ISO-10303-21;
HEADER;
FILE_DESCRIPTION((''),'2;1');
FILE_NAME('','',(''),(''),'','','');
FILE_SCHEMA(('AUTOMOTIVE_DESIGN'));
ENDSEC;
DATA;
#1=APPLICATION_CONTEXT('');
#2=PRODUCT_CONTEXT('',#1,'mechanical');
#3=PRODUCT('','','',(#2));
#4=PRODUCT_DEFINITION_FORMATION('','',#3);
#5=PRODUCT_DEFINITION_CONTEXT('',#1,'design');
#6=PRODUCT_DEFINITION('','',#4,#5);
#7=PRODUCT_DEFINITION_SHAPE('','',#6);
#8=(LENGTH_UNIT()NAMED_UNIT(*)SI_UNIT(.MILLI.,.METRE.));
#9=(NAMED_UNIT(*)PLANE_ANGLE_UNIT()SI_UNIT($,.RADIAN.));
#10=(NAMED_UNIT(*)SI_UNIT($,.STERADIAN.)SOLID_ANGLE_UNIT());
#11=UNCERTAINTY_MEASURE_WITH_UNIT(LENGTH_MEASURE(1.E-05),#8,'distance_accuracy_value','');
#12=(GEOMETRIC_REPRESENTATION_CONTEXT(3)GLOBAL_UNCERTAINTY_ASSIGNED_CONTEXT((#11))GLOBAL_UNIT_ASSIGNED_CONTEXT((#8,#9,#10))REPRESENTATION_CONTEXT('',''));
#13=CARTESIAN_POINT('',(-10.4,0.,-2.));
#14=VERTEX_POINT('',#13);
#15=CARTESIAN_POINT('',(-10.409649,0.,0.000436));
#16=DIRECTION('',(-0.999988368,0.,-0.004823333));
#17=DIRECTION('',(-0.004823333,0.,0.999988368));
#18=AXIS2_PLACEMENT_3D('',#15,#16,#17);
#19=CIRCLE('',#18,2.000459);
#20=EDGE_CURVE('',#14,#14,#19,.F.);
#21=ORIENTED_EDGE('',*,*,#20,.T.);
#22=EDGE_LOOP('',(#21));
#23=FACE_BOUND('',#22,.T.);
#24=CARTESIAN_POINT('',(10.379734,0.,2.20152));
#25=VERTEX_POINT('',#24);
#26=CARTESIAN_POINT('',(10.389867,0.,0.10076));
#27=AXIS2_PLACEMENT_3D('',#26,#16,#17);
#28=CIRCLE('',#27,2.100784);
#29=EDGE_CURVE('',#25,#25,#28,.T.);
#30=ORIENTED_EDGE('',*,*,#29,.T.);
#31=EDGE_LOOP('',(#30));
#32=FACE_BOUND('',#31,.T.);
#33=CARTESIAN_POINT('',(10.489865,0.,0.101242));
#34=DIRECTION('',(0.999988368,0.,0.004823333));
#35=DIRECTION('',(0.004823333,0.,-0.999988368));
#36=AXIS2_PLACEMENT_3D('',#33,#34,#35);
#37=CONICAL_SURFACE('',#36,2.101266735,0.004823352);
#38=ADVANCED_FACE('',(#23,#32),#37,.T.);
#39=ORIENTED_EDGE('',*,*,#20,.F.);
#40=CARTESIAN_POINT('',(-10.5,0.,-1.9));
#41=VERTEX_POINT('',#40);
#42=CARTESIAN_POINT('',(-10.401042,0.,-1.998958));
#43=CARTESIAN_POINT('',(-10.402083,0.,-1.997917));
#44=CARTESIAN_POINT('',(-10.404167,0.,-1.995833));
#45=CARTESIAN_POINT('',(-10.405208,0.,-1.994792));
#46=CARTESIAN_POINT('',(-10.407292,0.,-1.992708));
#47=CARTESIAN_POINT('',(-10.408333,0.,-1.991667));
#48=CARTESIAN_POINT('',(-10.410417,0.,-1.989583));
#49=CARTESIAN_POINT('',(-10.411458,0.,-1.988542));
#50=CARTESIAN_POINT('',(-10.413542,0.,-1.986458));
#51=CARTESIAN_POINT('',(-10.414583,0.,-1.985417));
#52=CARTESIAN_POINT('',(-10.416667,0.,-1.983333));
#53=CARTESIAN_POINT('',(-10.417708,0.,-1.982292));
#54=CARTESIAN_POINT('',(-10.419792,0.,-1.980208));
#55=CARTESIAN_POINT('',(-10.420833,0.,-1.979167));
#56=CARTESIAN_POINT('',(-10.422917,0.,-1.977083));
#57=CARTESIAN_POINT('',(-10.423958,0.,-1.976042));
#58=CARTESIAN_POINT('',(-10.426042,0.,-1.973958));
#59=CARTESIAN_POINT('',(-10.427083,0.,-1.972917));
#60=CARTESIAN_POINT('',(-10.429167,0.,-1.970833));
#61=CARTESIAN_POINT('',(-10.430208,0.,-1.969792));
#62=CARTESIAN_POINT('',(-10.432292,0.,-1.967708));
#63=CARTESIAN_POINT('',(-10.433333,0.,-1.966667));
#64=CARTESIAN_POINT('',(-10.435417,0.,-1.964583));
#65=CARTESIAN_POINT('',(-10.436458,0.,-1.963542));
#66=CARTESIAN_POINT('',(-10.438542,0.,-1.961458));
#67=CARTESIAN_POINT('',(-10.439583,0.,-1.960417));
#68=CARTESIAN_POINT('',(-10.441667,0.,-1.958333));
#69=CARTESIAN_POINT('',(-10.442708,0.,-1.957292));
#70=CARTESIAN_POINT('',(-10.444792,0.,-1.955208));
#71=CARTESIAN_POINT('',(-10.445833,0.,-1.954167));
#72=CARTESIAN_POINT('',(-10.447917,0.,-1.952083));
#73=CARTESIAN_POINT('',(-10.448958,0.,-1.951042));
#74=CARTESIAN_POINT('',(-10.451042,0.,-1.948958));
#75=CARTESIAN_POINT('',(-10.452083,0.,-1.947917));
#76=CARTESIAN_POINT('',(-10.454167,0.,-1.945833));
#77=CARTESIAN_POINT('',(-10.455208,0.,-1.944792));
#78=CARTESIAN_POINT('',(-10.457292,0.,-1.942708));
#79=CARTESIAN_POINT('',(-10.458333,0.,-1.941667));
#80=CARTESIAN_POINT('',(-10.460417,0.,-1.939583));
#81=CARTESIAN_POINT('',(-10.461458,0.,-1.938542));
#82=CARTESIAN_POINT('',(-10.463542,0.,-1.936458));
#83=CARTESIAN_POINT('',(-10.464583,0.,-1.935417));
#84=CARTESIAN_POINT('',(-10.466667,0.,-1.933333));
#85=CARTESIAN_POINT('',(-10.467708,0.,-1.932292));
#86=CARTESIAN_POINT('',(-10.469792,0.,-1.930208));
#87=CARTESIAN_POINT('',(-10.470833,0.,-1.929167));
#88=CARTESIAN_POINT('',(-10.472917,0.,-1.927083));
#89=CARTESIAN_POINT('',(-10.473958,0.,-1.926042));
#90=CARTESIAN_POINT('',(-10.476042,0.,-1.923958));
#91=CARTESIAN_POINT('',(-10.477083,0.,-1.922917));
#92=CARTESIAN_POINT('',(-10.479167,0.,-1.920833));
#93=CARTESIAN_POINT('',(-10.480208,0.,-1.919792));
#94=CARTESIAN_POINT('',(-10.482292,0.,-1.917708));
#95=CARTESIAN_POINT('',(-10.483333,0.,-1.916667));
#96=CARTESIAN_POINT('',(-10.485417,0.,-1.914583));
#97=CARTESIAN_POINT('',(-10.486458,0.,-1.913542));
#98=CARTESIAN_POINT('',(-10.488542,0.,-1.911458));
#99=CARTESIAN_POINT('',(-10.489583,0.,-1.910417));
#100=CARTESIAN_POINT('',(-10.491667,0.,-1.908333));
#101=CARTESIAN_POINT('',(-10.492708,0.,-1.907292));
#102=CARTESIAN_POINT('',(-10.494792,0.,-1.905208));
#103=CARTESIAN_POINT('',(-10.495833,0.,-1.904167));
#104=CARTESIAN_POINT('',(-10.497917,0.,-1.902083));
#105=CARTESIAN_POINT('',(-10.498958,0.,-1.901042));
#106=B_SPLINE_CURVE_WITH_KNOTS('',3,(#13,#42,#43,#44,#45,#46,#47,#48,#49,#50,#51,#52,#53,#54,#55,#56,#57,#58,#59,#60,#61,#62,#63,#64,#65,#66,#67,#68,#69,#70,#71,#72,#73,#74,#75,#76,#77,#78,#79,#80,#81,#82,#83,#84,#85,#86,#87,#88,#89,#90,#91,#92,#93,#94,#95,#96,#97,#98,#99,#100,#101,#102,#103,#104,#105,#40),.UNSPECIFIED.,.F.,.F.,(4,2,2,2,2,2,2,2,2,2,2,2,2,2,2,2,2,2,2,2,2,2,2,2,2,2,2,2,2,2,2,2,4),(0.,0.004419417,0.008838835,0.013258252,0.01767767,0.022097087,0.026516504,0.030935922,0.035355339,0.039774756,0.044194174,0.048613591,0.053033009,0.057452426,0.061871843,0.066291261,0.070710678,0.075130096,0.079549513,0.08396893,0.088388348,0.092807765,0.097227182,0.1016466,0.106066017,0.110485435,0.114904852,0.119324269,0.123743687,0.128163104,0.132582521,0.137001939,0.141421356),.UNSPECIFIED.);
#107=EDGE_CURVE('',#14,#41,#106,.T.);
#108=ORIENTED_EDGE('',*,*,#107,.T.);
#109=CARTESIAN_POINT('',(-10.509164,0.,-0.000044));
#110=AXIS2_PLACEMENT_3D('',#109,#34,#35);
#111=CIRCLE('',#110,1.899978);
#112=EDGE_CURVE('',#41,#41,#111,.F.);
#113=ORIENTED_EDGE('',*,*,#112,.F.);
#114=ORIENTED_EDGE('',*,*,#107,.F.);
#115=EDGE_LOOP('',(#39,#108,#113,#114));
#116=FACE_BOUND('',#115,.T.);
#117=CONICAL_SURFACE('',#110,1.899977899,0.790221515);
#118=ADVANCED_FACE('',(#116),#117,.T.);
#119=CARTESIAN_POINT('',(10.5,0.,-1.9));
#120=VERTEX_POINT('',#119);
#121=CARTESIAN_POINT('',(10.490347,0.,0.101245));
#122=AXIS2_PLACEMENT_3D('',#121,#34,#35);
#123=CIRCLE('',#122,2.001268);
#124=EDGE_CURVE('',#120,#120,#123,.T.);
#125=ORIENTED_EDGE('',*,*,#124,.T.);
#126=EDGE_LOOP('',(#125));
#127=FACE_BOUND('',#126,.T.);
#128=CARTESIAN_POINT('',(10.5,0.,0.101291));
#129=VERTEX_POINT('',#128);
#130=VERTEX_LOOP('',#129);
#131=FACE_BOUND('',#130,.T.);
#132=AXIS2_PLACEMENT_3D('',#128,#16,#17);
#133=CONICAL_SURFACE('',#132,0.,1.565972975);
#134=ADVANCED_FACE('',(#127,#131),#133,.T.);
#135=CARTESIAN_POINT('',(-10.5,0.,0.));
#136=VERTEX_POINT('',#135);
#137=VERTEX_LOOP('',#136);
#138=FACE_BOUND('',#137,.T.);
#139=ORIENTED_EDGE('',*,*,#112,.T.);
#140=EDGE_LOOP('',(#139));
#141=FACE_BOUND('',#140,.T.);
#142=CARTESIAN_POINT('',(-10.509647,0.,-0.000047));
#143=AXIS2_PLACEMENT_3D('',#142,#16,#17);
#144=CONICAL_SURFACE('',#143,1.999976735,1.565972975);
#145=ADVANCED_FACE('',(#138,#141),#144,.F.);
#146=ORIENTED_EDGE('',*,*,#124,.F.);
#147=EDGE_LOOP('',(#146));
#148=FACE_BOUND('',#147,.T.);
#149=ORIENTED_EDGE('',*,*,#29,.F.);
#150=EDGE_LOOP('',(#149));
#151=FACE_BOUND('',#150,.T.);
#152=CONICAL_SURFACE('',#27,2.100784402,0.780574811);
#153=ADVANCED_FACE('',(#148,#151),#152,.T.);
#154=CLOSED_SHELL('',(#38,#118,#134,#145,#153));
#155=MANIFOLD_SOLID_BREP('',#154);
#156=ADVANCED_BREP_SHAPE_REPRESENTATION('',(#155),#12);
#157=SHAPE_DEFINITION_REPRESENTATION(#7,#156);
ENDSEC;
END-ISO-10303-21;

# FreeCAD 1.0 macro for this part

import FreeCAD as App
import Part
import Sketcher

V = App.Vector


def edges_at(feature, points):
    """Names of the edges that pass closest to the given points."""
    edges = feature.Shape.Edges
    near = lambda p: min(range(len(edges)), key=lambda i: edges[i].distToShape(Part.Vertex(*p))[0])
    return sorted({f"Edge{near(p) + 1}" for p in points})


def add_polygon(sketch, points):
    """Adds a closed chain of lines whose ends are joined by coincident constraints."""
    first, n = sketch.GeometryCount, len(points)
    for a, b in zip(points, points[1:] + points[:1]):
        sketch.addGeometry(Part.LineSegment(App.Vector(*a, 0), App.Vector(*b, 0)), False)
    for i in range(n):
        sketch.addConstraint(Sketcher.Constraint("Coincident", first + i, 2, first + (i + 1) % n, 1))

doc = App.newDocument("Part")
params = doc.addObject("Spreadsheet::Sheet", "Params")
for row, (alias, value) in enumerate([
    ("sketch1_width", "21 mm"),
    ("sketch1_height", "2 mm"),
    ("revolution_angle", "360 deg"),
    ("chamfer_size", "0.1 mm"),
], start=1):
    params.set(f"A{row}", alias)
    params.set(f"B{row}", "=" + value)
    params.setAlias(f"B{row}", alias)

body = doc.addObject("PartDesign::Body", "Body")

sketch1 = body.newObject("Sketcher::SketchObject", "Sketch")
sketch1.AttachmentSupport = (doc.getObject("XZ_Plane"), [""])
sketch1.MapMode = "FlatFace"
add_polygon(sketch1, [(-10.5, 0), (10.5, 0.1), (10.5, -2), (-10.5, -2)])
sketch1.addGeometry(Part.LineSegment(V(-10.5, 0, 0), V(10.5, 0.1, 0)), True)
sketch1.addConstraint([
    Sketcher.Constraint("Vertical", 1),
    Sketcher.Constraint("Horizontal", 2),
    Sketcher.Constraint("Vertical", 3),
    Sketcher.Constraint("Coincident", 4, 2, 0, 2),
    Sketcher.Constraint("PointOnObject", 3, 2, -1),
    Sketcher.Constraint("Parallel", 0, 4),
    Sketcher.Constraint("DistanceX", 2, 2, 2, 1, 21.0),
    Sketcher.Constraint("DistanceY", 3, 1, 3, 2, 2.0),
    Sketcher.Constraint("DistanceX", -1, 1, 0, 2, 10.5),
    Sketcher.Constraint("DistanceY", 1, 2, 1, 1, 2.101291),
    Sketcher.Constraint("Distance", 4, 21.009891),
])
sketch1.setExpression("Constraints[10]", "Params.sketch1_width")
sketch1.setExpression("Constraints[11]", "Params.sketch1_height")
revolution = body.newObject("PartDesign::Revolution", "Revolution")
revolution.Profile = sketch1
revolution.ReferenceAxis = (sketch1, ["Axis0"])
revolution.setExpression("Angle", "Params.revolution_angle")
doc.recompute()

chamfer = body.newObject("PartDesign::Chamfer", "Chamfer")
chamfer.Base = (revolution, edges_at(revolution, [(10.5, 0, -2), (-10.5, 0, -2)]))
chamfer.setExpression("Size", "Params.chamfer_size")

doc.recompute()
